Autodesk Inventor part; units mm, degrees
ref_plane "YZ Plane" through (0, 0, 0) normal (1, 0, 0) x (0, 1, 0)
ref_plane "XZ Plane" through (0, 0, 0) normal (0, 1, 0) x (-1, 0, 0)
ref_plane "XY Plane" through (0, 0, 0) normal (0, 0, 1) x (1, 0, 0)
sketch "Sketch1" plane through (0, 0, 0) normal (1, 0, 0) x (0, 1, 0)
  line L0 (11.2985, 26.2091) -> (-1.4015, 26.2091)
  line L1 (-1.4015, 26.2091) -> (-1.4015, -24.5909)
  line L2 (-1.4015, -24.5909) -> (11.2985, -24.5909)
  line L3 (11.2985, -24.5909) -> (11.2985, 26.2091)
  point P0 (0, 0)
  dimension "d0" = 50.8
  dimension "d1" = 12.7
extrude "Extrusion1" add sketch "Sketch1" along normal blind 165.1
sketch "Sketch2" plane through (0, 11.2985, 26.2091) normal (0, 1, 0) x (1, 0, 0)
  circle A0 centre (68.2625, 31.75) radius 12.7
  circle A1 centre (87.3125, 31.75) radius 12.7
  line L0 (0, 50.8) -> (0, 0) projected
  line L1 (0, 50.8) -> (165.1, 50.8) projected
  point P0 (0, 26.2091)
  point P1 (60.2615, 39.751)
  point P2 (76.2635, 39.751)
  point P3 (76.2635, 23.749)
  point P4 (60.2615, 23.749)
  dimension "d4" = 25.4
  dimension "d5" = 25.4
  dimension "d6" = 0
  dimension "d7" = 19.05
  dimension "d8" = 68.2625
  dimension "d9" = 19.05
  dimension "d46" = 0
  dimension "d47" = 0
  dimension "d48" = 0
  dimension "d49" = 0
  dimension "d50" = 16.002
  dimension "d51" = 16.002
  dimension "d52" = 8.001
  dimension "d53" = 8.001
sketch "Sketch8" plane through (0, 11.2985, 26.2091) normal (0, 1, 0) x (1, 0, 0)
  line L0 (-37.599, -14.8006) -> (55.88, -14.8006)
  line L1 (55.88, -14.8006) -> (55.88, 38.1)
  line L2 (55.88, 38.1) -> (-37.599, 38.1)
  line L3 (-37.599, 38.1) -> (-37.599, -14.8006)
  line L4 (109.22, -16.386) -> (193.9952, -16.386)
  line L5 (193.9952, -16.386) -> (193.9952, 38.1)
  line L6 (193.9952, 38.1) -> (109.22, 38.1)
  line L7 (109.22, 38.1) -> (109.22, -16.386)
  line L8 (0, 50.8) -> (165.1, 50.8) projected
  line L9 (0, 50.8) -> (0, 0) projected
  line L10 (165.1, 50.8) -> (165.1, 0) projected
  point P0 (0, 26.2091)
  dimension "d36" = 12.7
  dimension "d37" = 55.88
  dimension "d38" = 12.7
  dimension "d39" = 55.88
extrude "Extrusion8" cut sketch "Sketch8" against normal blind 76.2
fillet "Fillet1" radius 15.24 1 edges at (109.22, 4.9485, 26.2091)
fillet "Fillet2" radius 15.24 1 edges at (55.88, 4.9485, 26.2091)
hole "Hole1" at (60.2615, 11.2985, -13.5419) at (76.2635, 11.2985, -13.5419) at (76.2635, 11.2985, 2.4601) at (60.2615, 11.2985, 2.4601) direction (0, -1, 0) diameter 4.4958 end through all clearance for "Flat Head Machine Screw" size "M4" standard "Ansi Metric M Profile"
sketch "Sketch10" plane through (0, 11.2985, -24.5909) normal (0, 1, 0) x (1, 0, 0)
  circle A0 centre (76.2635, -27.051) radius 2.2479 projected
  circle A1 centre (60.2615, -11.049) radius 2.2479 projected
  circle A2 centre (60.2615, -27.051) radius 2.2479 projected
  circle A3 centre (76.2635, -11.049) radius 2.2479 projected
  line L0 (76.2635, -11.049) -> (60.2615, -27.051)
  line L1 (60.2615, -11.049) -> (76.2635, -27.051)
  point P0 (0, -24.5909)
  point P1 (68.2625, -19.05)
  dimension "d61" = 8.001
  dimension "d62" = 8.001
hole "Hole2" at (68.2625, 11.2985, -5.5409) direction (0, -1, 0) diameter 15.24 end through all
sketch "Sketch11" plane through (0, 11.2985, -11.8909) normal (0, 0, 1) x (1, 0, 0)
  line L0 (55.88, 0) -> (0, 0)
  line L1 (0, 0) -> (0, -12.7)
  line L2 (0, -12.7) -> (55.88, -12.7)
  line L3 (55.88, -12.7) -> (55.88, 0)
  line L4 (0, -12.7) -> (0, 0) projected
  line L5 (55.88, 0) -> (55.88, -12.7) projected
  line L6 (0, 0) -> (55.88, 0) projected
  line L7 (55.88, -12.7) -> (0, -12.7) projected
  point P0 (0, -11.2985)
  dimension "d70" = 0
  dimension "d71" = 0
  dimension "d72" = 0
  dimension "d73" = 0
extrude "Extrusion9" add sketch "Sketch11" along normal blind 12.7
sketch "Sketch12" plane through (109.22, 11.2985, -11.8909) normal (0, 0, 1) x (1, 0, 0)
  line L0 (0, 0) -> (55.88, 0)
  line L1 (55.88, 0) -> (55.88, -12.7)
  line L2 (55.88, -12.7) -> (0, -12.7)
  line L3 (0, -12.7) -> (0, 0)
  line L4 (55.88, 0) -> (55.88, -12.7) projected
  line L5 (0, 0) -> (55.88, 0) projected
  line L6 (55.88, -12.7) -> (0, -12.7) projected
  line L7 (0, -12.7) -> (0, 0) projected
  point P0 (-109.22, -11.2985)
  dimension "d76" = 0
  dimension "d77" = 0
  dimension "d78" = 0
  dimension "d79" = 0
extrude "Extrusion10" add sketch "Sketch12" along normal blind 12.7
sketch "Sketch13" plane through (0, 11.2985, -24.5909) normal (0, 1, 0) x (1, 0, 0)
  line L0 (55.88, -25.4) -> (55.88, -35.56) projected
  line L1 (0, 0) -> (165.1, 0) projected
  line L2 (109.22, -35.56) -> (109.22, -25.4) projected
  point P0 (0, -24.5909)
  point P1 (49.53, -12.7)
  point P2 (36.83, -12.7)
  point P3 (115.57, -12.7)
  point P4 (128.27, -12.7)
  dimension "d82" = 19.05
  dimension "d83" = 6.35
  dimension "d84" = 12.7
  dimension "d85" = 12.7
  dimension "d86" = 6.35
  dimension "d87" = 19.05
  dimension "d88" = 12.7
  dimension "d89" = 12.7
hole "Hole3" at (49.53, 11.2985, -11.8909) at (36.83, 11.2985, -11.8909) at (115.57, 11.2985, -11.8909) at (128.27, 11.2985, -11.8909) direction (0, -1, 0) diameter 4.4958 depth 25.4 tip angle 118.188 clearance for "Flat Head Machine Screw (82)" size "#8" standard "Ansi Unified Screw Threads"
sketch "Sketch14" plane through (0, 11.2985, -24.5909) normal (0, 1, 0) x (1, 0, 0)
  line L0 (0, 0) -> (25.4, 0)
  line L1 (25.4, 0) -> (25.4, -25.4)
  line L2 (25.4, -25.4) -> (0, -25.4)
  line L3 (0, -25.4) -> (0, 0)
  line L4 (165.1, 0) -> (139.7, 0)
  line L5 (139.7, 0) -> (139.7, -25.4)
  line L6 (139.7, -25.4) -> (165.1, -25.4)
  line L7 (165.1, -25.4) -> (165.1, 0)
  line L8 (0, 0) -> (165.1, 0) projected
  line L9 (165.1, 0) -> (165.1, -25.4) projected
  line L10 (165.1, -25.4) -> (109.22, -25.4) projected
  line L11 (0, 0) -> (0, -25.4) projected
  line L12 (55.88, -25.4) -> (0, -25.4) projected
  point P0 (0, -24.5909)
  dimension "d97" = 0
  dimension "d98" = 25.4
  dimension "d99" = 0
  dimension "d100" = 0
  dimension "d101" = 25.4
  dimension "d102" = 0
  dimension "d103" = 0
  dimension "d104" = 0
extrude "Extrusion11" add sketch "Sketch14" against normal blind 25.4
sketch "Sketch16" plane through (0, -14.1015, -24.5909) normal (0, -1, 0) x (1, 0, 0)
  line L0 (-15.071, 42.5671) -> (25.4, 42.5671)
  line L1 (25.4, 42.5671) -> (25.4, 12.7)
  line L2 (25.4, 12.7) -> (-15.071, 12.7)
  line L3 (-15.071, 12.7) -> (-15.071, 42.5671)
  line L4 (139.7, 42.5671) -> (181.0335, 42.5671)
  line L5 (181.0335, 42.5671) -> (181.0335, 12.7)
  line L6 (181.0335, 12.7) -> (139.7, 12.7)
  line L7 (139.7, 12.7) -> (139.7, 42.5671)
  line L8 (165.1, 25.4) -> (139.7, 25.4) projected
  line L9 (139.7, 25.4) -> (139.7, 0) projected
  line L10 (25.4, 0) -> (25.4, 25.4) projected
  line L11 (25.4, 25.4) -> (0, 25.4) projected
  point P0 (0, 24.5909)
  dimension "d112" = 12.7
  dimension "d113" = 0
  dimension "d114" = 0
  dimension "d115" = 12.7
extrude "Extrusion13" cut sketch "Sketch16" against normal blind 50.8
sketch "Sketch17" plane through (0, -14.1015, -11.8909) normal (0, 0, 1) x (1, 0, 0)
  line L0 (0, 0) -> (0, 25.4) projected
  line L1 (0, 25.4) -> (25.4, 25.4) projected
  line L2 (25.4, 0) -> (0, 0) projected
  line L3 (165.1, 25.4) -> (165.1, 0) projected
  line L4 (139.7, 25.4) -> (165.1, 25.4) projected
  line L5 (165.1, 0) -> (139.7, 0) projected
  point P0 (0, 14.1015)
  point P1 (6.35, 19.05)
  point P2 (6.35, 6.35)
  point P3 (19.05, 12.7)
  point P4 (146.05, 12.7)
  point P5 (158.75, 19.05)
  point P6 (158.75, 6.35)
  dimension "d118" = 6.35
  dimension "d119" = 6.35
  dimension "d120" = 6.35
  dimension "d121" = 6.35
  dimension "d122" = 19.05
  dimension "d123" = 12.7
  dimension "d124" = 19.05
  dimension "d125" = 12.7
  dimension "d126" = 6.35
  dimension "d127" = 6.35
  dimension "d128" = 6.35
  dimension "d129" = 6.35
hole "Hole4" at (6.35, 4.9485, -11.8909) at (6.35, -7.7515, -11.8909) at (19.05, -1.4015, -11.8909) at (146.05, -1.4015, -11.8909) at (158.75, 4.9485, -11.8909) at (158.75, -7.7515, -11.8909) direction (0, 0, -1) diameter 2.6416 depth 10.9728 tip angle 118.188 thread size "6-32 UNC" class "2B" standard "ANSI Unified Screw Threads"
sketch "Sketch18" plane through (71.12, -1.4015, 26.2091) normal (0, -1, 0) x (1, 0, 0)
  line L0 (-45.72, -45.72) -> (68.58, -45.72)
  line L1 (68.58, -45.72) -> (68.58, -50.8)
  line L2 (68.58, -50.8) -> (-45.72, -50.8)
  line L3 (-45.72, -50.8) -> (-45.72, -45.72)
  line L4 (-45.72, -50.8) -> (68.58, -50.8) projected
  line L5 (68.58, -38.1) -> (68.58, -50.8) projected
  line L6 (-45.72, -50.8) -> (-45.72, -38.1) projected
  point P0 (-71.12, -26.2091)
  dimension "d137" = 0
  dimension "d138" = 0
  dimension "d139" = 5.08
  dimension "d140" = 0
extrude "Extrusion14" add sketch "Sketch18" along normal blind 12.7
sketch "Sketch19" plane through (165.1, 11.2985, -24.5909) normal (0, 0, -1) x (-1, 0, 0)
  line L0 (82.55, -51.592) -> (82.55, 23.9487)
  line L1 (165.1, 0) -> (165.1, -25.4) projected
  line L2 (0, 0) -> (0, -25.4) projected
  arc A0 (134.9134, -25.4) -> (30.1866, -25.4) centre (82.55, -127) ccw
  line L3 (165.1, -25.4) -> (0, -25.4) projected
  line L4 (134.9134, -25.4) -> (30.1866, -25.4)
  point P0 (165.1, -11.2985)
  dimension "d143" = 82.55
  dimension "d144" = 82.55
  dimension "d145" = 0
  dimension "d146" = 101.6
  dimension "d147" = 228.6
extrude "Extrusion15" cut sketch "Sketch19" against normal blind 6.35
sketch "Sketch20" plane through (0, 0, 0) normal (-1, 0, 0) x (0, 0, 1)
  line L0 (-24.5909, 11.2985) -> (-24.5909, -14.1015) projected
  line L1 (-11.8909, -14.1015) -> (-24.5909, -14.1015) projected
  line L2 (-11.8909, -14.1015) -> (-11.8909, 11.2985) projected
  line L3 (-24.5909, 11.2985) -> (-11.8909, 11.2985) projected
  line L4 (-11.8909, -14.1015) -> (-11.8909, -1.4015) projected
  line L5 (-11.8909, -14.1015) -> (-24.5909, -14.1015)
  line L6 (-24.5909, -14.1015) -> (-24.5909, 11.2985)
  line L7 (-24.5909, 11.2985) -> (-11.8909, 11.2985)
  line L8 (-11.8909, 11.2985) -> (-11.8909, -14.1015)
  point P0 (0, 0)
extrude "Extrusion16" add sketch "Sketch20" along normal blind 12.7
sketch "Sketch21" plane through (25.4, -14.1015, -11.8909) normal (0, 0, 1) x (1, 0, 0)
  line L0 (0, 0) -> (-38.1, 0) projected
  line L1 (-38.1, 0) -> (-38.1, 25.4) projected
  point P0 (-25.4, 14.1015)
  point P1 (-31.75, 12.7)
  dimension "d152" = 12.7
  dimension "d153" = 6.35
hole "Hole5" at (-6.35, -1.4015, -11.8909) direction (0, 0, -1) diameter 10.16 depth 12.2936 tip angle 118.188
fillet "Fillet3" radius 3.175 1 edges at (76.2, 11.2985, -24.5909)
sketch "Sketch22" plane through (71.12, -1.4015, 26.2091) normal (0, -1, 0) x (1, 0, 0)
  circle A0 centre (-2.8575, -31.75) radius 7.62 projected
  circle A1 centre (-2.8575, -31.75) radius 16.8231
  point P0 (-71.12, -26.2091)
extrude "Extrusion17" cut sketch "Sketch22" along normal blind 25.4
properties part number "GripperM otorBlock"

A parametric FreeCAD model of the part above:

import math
import FreeCAD as App
import Part
import Sketcher

V = App.Vector
Q = App.Units.Quantity


def edges_at(feature, points):
    """Names of the edges that pass closest to the given points."""
    edges = feature.Shape.Edges
    near = lambda p: min(range(len(edges)), key=lambda i: edges[i].distToShape(Part.Vertex(*p))[0])
    return sorted({f"Edge{near(p) + 1}" for p in points})


def add_polygon(sketch, points):
    """Adds a closed chain of lines whose ends are joined by coincident constraints."""
    first, n = sketch.GeometryCount, len(points)
    for a, b in zip(points, points[1:] + points[:1]):
        sketch.addGeometry(Part.LineSegment(App.Vector(*a, 0), App.Vector(*b, 0)), False)
    for i in range(n):
        sketch.addConstraint(Sketcher.Constraint("Coincident", first + i, 2, first + (i + 1) % n, 1))

doc = App.newDocument("Part")
body = doc.addObject("PartDesign::Body", "Body")

sketch1 = doc.addObject("Sketcher::SketchObject", "Sketch")
body.addObject(sketch1)
sketch1.AttachmentSupport = (doc.YZ_Plane, [""])
sketch1.MapMode = "FlatFace"
add_polygon(sketch1, [(11, -25), (11, 26), (-1, 26), (-1, -25)])
sketch1.addConstraint(Sketcher.Constraint("Vertical", 0))
sketch1.addConstraint(Sketcher.Constraint("Horizontal", 1))
sketch1.addConstraint(Sketcher.Constraint("Vertical", 2))
sketch1.addConstraint(Sketcher.Constraint("Horizontal", 3))
sketch1.addConstraint(Sketcher.Constraint("DistanceY", 0, 1, 0, 2, Q("2 in")))
sketch1.addConstraint(Sketcher.Constraint("DistanceX", 1, 2, 1, 1, Q("0.5 in")))
sketch1.addConstraint(Sketcher.Constraint("DistanceX", -1, 1, 0, 2, Q("11.2985 mm")))
sketch1.addConstraint(Sketcher.Constraint("DistanceY", -1, 1, 0, 2, Q("26.209 mm")))
pad1 = doc.addObject("PartDesign::Pad", "Pad")
body.addObject(pad1)
pad1.Profile = sketch1
pad1.Length = Q("6.5 in")

sketch2 = doc.addObject("Sketcher::SketchObject", "Sketch001")
body.addObject(sketch2)
sketch2.AttachmentSupport = (doc.XZ_Plane, [""])
sketch2.MapMode = "FlatFace"
sketch2.AttachmentOffset = App.Placement(V(0, 0, -11.2985), App.Rotation())
add_polygon(sketch2, [(-38, -12), (-38, 41), (56, 41), (56, -12)])
add_polygon(sketch2, [(194, -12), (109, -12), (109, 43), (194, 43)])
sketch2.addConstraint(Sketcher.Constraint("Vertical", 0))
sketch2.addConstraint(Sketcher.Constraint("Horizontal", 1))
sketch2.addConstraint(Sketcher.Constraint("Vertical", 2))
sketch2.addConstraint(Sketcher.Constraint("Horizontal", 3))
sketch2.addConstraint(Sketcher.Constraint("Horizontal", 4))
sketch2.addConstraint(Sketcher.Constraint("Vertical", 5))
sketch2.addConstraint(Sketcher.Constraint("Horizontal", 6))
sketch2.addConstraint(Sketcher.Constraint("Vertical", 7))
sketch2.addConstraint(Sketcher.Constraint("Horizontal", 3, 2, 4, 2))
sketch2.addConstraint(Sketcher.Constraint("DistanceX", -1, 1, 1, 2, Q("2.2 in")))
sketch2.addConstraint(Sketcher.Constraint("DistanceX", -1, 1, 4, 2, Q("4.3 in")))
sketch2.addConstraint(Sketcher.Constraint("DistanceX", 4, 2, 4, 1, Q("3.3376 in")))
sketch2.addConstraint(Sketcher.Constraint("DistanceY", 0, 1, 0, 2, Q("2.0827 in")))
sketch2.addConstraint(Sketcher.Constraint("DistanceX", 1, 1, 1, 2, Q("93.479 mm")))
sketch2.addConstraint(Sketcher.Constraint("DistanceY", 5, 1, 5, 2, Q("54.486 mm")))
sketch2.addConstraint(Sketcher.Constraint("DistanceY", -1, 1, 0, 2, Q("41.0097 mm")))
pocket1 = doc.addObject("PartDesign::Pocket", "Pocket")
body.addObject(pocket1)
pocket1.Profile = sketch2
pocket1.Length = Q("3 in")
pocket1.Reversed = True
doc.recompute()

fillet = doc.addObject("PartDesign::Fillet", "Fillet")
body.addObject(fillet)
fillet.Base = (pocket1, edges_at(pocket1, [(109.22, 4.949, 26.209)]))
fillet.Radius = Q("0.6 in")
doc.recompute()

fillet2 = doc.addObject("PartDesign::Fillet", "Fillet001")
body.addObject(fillet2)
fillet2.Base = (fillet, edges_at(fillet, [(55.88, 4.949, 26.209)]))
fillet2.Radius = Q("0.6 in")

sketch3 = doc.addObject("Sketcher::SketchObject", "Sketch002")
body.addObject(sketch3)
sketch3.AttachmentSupport = (doc.XZ_Plane, [""])
sketch3.MapMode = "FlatFace"
sketch3.AttachmentOffset = App.Placement(V(0, 0, -11.2985), App.Rotation())
sketch3.addGeometry(Part.Circle(V(60.3, -13.5, 0), V(0, 0, 1), 2.2), False)
sketch3.addGeometry(Part.Circle(V(76.3, -13.5, 0), V(0, 0, 1), 2.2), False)
sketch3.addGeometry(Part.Circle(V(76.3, 2.5, 0), V(0, 0, 1), 2.2), False)
sketch3.addGeometry(Part.Circle(V(60.3, 2.5, 0), V(0, 0, 1), 2.2), False)
sketch3.addConstraint(Sketcher.Constraint("Equal", 0, 1))
sketch3.addConstraint(Sketcher.Constraint("Equal", 1, 2))
sketch3.addConstraint(Sketcher.Constraint("Equal", 2, 3))
sketch3.addConstraint(Sketcher.Constraint("Horizontal", 0, 3, 1, 3))
sketch3.addConstraint(Sketcher.Constraint("Horizontal", 2, 3, 3, 3))
sketch3.addConstraint(Sketcher.Constraint("Vertical", 1, 3, 2, 3))
sketch3.addConstraint(Sketcher.Constraint("Vertical", 0, 3, 3, 3))
sketch3.addConstraint(Sketcher.Constraint("Diameter", 0, Q("0.177 in")))
sketch3.addConstraint(Sketcher.Constraint("DistanceX", 0, 3, 1, 3, Q("0.63 in")))
sketch3.addConstraint(Sketcher.Constraint("DistanceY", 1, 3, 2, 3, Q("0.63 in")))
sketch3.addConstraint(Sketcher.Constraint("DistanceX", -1, 1, 0, 3, Q("2.3725 in")))
sketch3.addConstraint(Sketcher.Constraint("DistanceY", 0, 3, -1, 1, Q("13.542 mm")))
doc.recompute()
hole = doc.addObject("PartDesign::Hole", "Hole")
body.addObject(hole)
hole.Profile = sketch3
hole.ThreadType = "None"
hole.Diameter = Q("0.177 in")
hole.DepthType = "ThroughAll"
hole.Reversed = True

sketch4 = doc.addObject("Sketcher::SketchObject", "Sketch003")
body.addObject(sketch4)
sketch4.AttachmentSupport = (doc.XZ_Plane, [""])
sketch4.MapMode = "FlatFace"
sketch4.AttachmentOffset = App.Placement(V(0, 0, -11.2985), App.Rotation())
sketch4.addGeometry(Part.Circle(V(68, -6, 0), V(0, 0, 1), 8), False)
sketch4.addConstraint(Sketcher.Constraint("Diameter", 0, Q("0.6 in")))
sketch4.addConstraint(Sketcher.Constraint("DistanceX", -1, 1, 0, 3, Q("2.6875 in")))
sketch4.addConstraint(Sketcher.Constraint("DistanceY", 0, 3, -1, 1, Q("5.541 mm")))
doc.recompute()
hole2 = doc.addObject("PartDesign::Hole", "Hole001")
body.addObject(hole2)
hole2.Profile = sketch4
hole2.ThreadType = "None"
hole2.Diameter = Q("0.6 in")
hole2.DepthType = "ThroughAll"
hole2.Reversed = True

sketch5 = doc.addObject("Sketcher::SketchObject", "Sketch004")
body.addObject(sketch5)
sketch5.AttachmentSupport = (doc.XY_Plane, [""])
sketch5.MapMode = "FlatFace"
sketch5.AttachmentOffset = App.Placement(V(0, 0, -11.8909), App.Rotation())
add_polygon(sketch5, [(56, -1), (56, 11), (0, 11), (0, -1)])
sketch5.addConstraint(Sketcher.Constraint("Vertical", 0))
sketch5.addConstraint(Sketcher.Constraint("Horizontal", 1))
sketch5.addConstraint(Sketcher.Constraint("Vertical", 2))
sketch5.addConstraint(Sketcher.Constraint("Horizontal", 3))
sketch5.addConstraint(Sketcher.Constraint("PointOnObject", 1, 2, -2))
sketch5.addConstraint(Sketcher.Constraint("DistanceX", 1, 2, 1, 1, Q("2.2 in")))
sketch5.addConstraint(Sketcher.Constraint("DistanceY", 0, 1, 0, 2, Q("0.5 in")))
sketch5.addConstraint(Sketcher.Constraint("DistanceY", -1, 1, 0, 2, Q("11.2985 mm")))
pad2 = doc.addObject("PartDesign::Pad", "Pad001")
body.addObject(pad2)
pad2.Profile = sketch5
pad2.Length = Q("0.5 in")

sketch6 = doc.addObject("Sketcher::SketchObject", "Sketch005")
body.addObject(sketch6)
sketch6.AttachmentSupport = (doc.XY_Plane, [""])
sketch6.MapMode = "FlatFace"
sketch6.AttachmentOffset = App.Placement(V(0, 0, -11.8909), App.Rotation())
add_polygon(sketch6, [(165, 11), (109, 11), (109, -1), (165, -1)])
sketch6.addConstraint(Sketcher.Constraint("Horizontal", 0))
sketch6.addConstraint(Sketcher.Constraint("Vertical", 1))
sketch6.addConstraint(Sketcher.Constraint("Horizontal", 2))
sketch6.addConstraint(Sketcher.Constraint("Vertical", 3))
sketch6.addConstraint(Sketcher.Constraint("DistanceX", 0, 2, 0, 1, Q("2.2 in")))
sketch6.addConstraint(Sketcher.Constraint("DistanceY", 1, 2, 1, 1, Q("0.5 in")))
sketch6.addConstraint(Sketcher.Constraint("DistanceX", -1, 1, 0, 2, Q("4.3 in")))
sketch6.addConstraint(Sketcher.Constraint("DistanceY", -1, 1, 0, 2, Q("11.2985 mm")))
pad3 = doc.addObject("PartDesign::Pad", "Pad002")
body.addObject(pad3)
pad3.Profile = sketch6
pad3.Length = Q("0.5 in")

sketch7 = doc.addObject("Sketcher::SketchObject", "Sketch006")
body.addObject(sketch7)
sketch7.AttachmentSupport = (doc.XZ_Plane, [""])
sketch7.MapMode = "FlatFace"
sketch7.AttachmentOffset = App.Placement(V(0, 0, -11.2985), App.Rotation())
sketch7.addGeometry(Part.Circle(V(49.5, -11.9, 0), V(0, 0, 1), 2.2), False)
sketch7.addGeometry(Part.Circle(V(36.8, -11.9, 0), V(0, 0, 1), 2.2), False)
sketch7.addGeometry(Part.Circle(V(115.6, -11.9, 0), V(0, 0, 1), 2.2), False)
sketch7.addGeometry(Part.Circle(V(128.3, -11.9, 0), V(0, 0, 1), 2.2), False)
sketch7.addConstraint(Sketcher.Constraint("Equal", 0, 1))
sketch7.addConstraint(Sketcher.Constraint("Equal", 1, 2))
sketch7.addConstraint(Sketcher.Constraint("Equal", 2, 3))
sketch7.addConstraint(Sketcher.Constraint("Horizontal", 0, 3, 1, 3))
sketch7.addConstraint(Sketcher.Constraint("Horizontal", 1, 3, 2, 3))
sketch7.addConstraint(Sketcher.Constraint("Horizontal", 2, 3, 3, 3))
sketch7.addConstraint(Sketcher.Constraint("Diameter", 0, Q("0.177 in")))
sketch7.addConstraint(Sketcher.Constraint("DistanceX", 1, 3, 0, 3, Q("0.5 in")))
sketch7.addConstraint(Sketcher.Constraint("DistanceX", 0, 3, 2, 3, Q("2.6 in")))
sketch7.addConstraint(Sketcher.Constraint("DistanceX", 2, 3, 3, 3, Q("0.5 in")))
sketch7.addConstraint(Sketcher.Constraint("DistanceX", -1, 1, 0, 3, Q("1.95 in")))
sketch7.addConstraint(Sketcher.Constraint("DistanceY", 0, 3, -1, 1, Q("11.891 mm")))
doc.recompute()
hole3 = doc.addObject("PartDesign::Hole", "Hole002")
body.addObject(hole3)
hole3.Profile = sketch7
hole3.ThreadType = "None"
hole3.Diameter = Q("0.177 in")
hole3.DepthType = "Dimension"
hole3.Depth = Q("1 in")
hole3.DrillPoint = "Angled"
hole3.DrillPointAngle = 118.188
hole3.Reversed = True

sketch8 = doc.addObject("Sketcher::SketchObject", "Sketch007")
body.addObject(sketch8)
sketch8.AttachmentSupport = (doc.XZ_Plane, [""])
sketch8.MapMode = "FlatFace"
sketch8.AttachmentOffset = App.Placement(V(0, 0, -11.2985), App.Rotation())
add_polygon(sketch8, [(165, -25), (140, -25), (140, 1), (165, 1)])
add_polygon(sketch8, [(25, -25), (0, -25), (0, 1), (25, 1)])
sketch8.addConstraint(Sketcher.Constraint("Horizontal", 0))
sketch8.addConstraint(Sketcher.Constraint("Vertical", 1))
sketch8.addConstraint(Sketcher.Constraint("Horizontal", 2))
sketch8.addConstraint(Sketcher.Constraint("Vertical", 3))
sketch8.addConstraint(Sketcher.Constraint("Horizontal", 4))
sketch8.addConstraint(Sketcher.Constraint("Vertical", 5))
sketch8.addConstraint(Sketcher.Constraint("Horizontal", 6))
sketch8.addConstraint(Sketcher.Constraint("Vertical", 7))
sketch8.addConstraint(Sketcher.Constraint("PointOnObject", 4, 2, -2))
sketch8.addConstraint(Sketcher.Constraint("Horizontal", 3, 2, 4, 2))
sketch8.addConstraint(Sketcher.Constraint("Horizontal", 2, 2, 5, 2))
sketch8.addConstraint(Sketcher.Constraint("Equal", 2, 4))
sketch8.addConstraint(Sketcher.Constraint("Equal", 6, 1))
sketch8.addConstraint(Sketcher.Constraint("DistanceX", 0, 2, 0, 1, Q("1 in")))
sketch8.addConstraint(Sketcher.Constraint("DistanceX", -1, 1, 0, 2, Q("5.5 in")))
sketch8.addConstraint(Sketcher.Constraint("DistanceY", 0, 2, -1, 1, Q("24.591 mm")))
pad4 = doc.addObject("PartDesign::Pad", "Pad003")
body.addObject(pad4)
pad4.Profile = sketch8
pad4.Length = Q("1 in")

sketch9 = doc.addObject("Sketcher::SketchObject", "Sketch008")
body.addObject(sketch9)
sketch9.AttachmentSupport = (doc.XZ_Plane, [""])
sketch9.MapMode = "FlatFace"
sketch9.AttachmentOffset = App.Placement(V(0, 0, 14.1015), App.Rotation())
add_polygon(sketch9, [(25, 18), (-15, 18), (-15, -12), (25, -12)])
add_polygon(sketch9, [(181, 18), (140, 18), (140, -12), (181, -12)])
sketch9.addConstraint(Sketcher.Constraint("Horizontal", 0))
sketch9.addConstraint(Sketcher.Constraint("Vertical", 1))
sketch9.addConstraint(Sketcher.Constraint("Horizontal", 2))
sketch9.addConstraint(Sketcher.Constraint("Vertical", 3))
sketch9.addConstraint(Sketcher.Constraint("Horizontal", 4))
sketch9.addConstraint(Sketcher.Constraint("Vertical", 5))
sketch9.addConstraint(Sketcher.Constraint("Horizontal", 6))
sketch9.addConstraint(Sketcher.Constraint("Vertical", 7))
sketch9.addConstraint(Sketcher.Constraint("Horizontal", 3, 2, 4, 2))
sketch9.addConstraint(Sketcher.Constraint("Horizontal", 2, 2, 5, 2))
sketch9.addConstraint(Sketcher.Constraint("DistanceX", -1, 1, 2, 2, Q("1 in")))
sketch9.addConstraint(Sketcher.Constraint("DistanceX", -1, 1, 4, 2, Q("5.5 in")))
sketch9.addConstraint(Sketcher.Constraint("DistanceX", 4, 2, 4, 1, Q("1.6273 in")))
sketch9.addConstraint(Sketcher.Constraint("DistanceX", 0, 2, 0, 1, Q("40.471 mm")))
sketch9.addConstraint(Sketcher.Constraint("DistanceY", 1, 2, 1, 1, Q("29.867 mm")))
sketch9.addConstraint(Sketcher.Constraint("DistanceY", -1, 1, 0, 2, Q("17.9762 mm")))
pocket2 = doc.addObject("PartDesign::Pocket", "Pocket001")
body.addObject(pocket2)
pocket2.Profile = sketch9
pocket2.Length = Q("2 in")

sketch10 = doc.addObject("Sketcher::SketchObject", "Sketch009")
body.addObject(sketch10)
sketch10.AttachmentSupport = (doc.XY_Plane, [""])
sketch10.MapMode = "FlatFace"
sketch10.AttachmentOffset = App.Placement(V(0, 0, -11.8909), App.Rotation())
sketch10.addGeometry(Part.Circle(V(6.3, 4.9, 0), V(0, 0, 1), 1.3), False)
sketch10.addGeometry(Part.Circle(V(6.3, -7.8, 0), V(0, 0, 1), 1.3), False)
sketch10.addGeometry(Part.Circle(V(19.1, -1.4, 0), V(0, 0, 1), 1.3), False)
sketch10.addGeometry(Part.Circle(V(146.1, -1.4, 0), V(0, 0, 1), 1.3), False)
sketch10.addGeometry(Part.Circle(V(158.8, 4.9, 0), V(0, 0, 1), 1.3), False)
sketch10.addGeometry(Part.Circle(V(158.8, -7.8, 0), V(0, 0, 1), 1.3), False)
sketch10.addConstraint(Sketcher.Constraint("Equal", 0, 1))
sketch10.addConstraint(Sketcher.Constraint("Equal", 1, 2))
sketch10.addConstraint(Sketcher.Constraint("Equal", 2, 3))
sketch10.addConstraint(Sketcher.Constraint("Equal", 3, 4))
sketch10.addConstraint(Sketcher.Constraint("Equal", 4, 5))
sketch10.addConstraint(Sketcher.Constraint("Horizontal", 2, 3, 3, 3))
sketch10.addConstraint(Sketcher.Constraint("Horizontal", 0, 3, 4, 3))
sketch10.addConstraint(Sketcher.Constraint("Horizontal", 1, 3, 5, 3))
sketch10.addConstraint(Sketcher.Constraint("Vertical", 0, 3, 1, 3))
sketch10.addConstraint(Sketcher.Constraint("Vertical", 4, 3, 5, 3))
sketch10.addConstraint(Sketcher.Constraint("Diameter", 0, Q("0.104 in")))
sketch10.addConstraint(Sketcher.Constraint("DistanceX", 2, 3, 3, 3, Q("5 in")))
sketch10.addConstraint(Sketcher.Constraint("DistanceX", 0, 3, 4, 3, Q("6 in")))
sketch10.addConstraint(Sketcher.Constraint("DistanceY", 1, 3, 0, 3, Q("0.5 in")))
sketch10.addConstraint(Sketcher.Constraint("DistanceX", 0, 3, 2, 3, Q("0.5 in")))
sketch10.addConstraint(Sketcher.Constraint("DistanceX", -1, 1, 0, 3, Q("0.25 in")))
sketch10.addConstraint(Sketcher.Constraint("DistanceY", 2, 3, 0, 3, Q("0.25 in")))
sketch10.addConstraint(Sketcher.Constraint("DistanceY", -1, 1, 0, 3, Q("4.9485 mm")))
doc.recompute()
hole4 = doc.addObject("PartDesign::Hole", "Hole003")
body.addObject(hole4)
hole4.Profile = sketch10
hole4.ThreadType = "None"
hole4.Diameter = Q("0.104 in")
hole4.DepthType = "Dimension"
hole4.Depth = Q("0.432 in")
hole4.DrillPoint = "Angled"
hole4.DrillPointAngle = 118.188

sketch11 = doc.addObject("Sketcher::SketchObject", "Sketch010")
body.addObject(sketch11)
sketch11.AttachmentSupport = (doc.XZ_Plane, [""])
sketch11.MapMode = "FlatFace"
sketch11.AttachmentOffset = App.Placement(V(0, 0, 1.4015), App.Rotation())
add_polygon(sketch11, [(140, -20), (25, -20), (25, -25), (140, -25)])
sketch11.addConstraint(Sketcher.Constraint("Horizontal", 0))
sketch11.addConstraint(Sketcher.Constraint("Vertical", 1))
sketch11.addConstraint(Sketcher.Constraint("Horizontal", 2))
sketch11.addConstraint(Sketcher.Constraint("Vertical", 3))
sketch11.addConstraint(Sketcher.Constraint("DistanceY", 1, 2, 1, 1, Q("0.2 in")))
sketch11.addConstraint(Sketcher.Constraint("DistanceX", 0, 2, 0, 1, Q("4.5 in")))
sketch11.addConstraint(Sketcher.Constraint("DistanceX", -1, 1, 0, 2, Q("1 in")))
sketch11.addConstraint(Sketcher.Constraint("DistanceY", 0, 2, -1, 1, Q("19.511 mm")))
pad5 = doc.addObject("PartDesign::Pad", "Pad004")
body.addObject(pad5)
pad5.Profile = sketch11
pad5.Length = Q("0.5 in")

sketch12 = doc.addObject("Sketcher::SketchObject", "Sketch011")
body.addObject(sketch12)
sketch12.AttachmentSupport = (doc.XY_Plane, [""])
sketch12.MapMode = "FlatFace"
sketch12.AttachmentOffset = App.Placement(V(0, 0, -24.5909), App.Rotation())
sketch12.addGeometry(Part.LineSegment(V(135, -14, 0), V(30, -14, 0)), False)
sketch12.addGeometry(Part.ArcOfCircle(Part.Circle(V(83, -116, 0), V(0, 0, 1), 114), math.radians(63), math.radians(117)), False)
sketch12.addConstraint(Sketcher.Constraint("Coincident", 0, 1, 1, 1))
sketch12.addConstraint(Sketcher.Constraint("Coincident", 1, 2, 0, 2))
sketch12.addConstraint(Sketcher.Constraint("Horizontal", 0))
sketch12.addConstraint(Sketcher.Constraint("Radius", 1, Q("4.5 in")))
sketch12.addConstraint(Sketcher.Constraint("DistanceY", 1, 3, 0, 1, Q("4 in")))
sketch12.addConstraint(Sketcher.Constraint("DistanceX", -1, 1, 1, 3, Q("3.25 in")))
sketch12.addConstraint(Sketcher.Constraint("DistanceY", 1, 3, -1, 1, Q("115.7015 mm")))
pocket3 = doc.addObject("PartDesign::Pocket", "Pocket002")
body.addObject(pocket3)
pocket3.Profile = sketch12
pocket3.Length = Q("0.25 in")
pocket3.Reversed = True

sketch13 = doc.addObject("Sketcher::SketchObject", "Sketch012")
body.addObject(sketch13)
sketch13.AttachmentSupport = (doc.YZ_Plane, [""])
sketch13.MapMode = "FlatFace"
add_polygon(sketch13, [(11, -12), (11, -25), (-14, -25), (-14, -12)])
sketch13.addConstraint(Sketcher.Constraint("Vertical", 0))
sketch13.addConstraint(Sketcher.Constraint("Horizontal", 1))
sketch13.addConstraint(Sketcher.Constraint("Vertical", 2))
sketch13.addConstraint(Sketcher.Constraint("Horizontal", 3))
sketch13.addConstraint(Sketcher.Constraint("DistanceX", 1, 2, 1, 1, Q("1 in")))
sketch13.addConstraint(Sketcher.Constraint("DistanceY", 0, 2, 0, 1, Q("0.5 in")))
sketch13.addConstraint(Sketcher.Constraint("DistanceX", -1, 1, 0, 2, Q("11.2985 mm")))
sketch13.addConstraint(Sketcher.Constraint("DistanceY", 0, 2, -1, 1, Q("24.591 mm")))
pad6 = doc.addObject("PartDesign::Pad", "Pad005")
body.addObject(pad6)
pad6.Profile = sketch13
pad6.Length = Q("0.5 in")
pad6.Reversed = True

sketch14 = doc.addObject("Sketcher::SketchObject", "Sketch013")
body.addObject(sketch14)
sketch14.AttachmentSupport = (doc.XY_Plane, [""])
sketch14.MapMode = "FlatFace"
sketch14.AttachmentOffset = App.Placement(V(0, 0, -11.8909), App.Rotation())
sketch14.addGeometry(Part.Circle(V(-6, -1, 0), V(0, 0, 1), 5), False)
sketch14.addConstraint(Sketcher.Constraint("Diameter", 0, Q("0.4 in")))
sketch14.addConstraint(Sketcher.Constraint("DistanceX", 0, 3, -1, 1, Q("0.25 in")))
sketch14.addConstraint(Sketcher.Constraint("DistanceY", 0, 3, -1, 1, Q("1.4015 mm")))
doc.recompute()
hole5 = doc.addObject("PartDesign::Hole", "Hole004")
body.addObject(hole5)
hole5.Profile = sketch14
hole5.ThreadType = "None"
hole5.Diameter = Q("0.4 in")
hole5.DepthType = "Dimension"
hole5.Depth = Q("0.484 in")
hole5.DrillPoint = "Angled"
hole5.DrillPointAngle = 118.188
doc.recompute()

fillet3 = doc.addObject("PartDesign::Fillet", "Fillet002")
body.addObject(fillet3)
fillet3.Base = (hole5, edges_at(hole5, [(76.2, 11.299, -24.591)]))
fillet3.Radius = Q("0.125 in")

sketch15 = doc.addObject("Sketcher::SketchObject", "Sketch014")
body.addObject(sketch15)
sketch15.AttachmentSupport = (doc.XZ_Plane, [""])
sketch15.MapMode = "FlatFace"
sketch15.AttachmentOffset = App.Placement(V(0, 0, 1.4015), App.Rotation())
sketch15.addGeometry(Part.Circle(V(68, -6, 0), V(0, 0, 1), 17), False)
sketch15.addGeometry(Part.Circle(V(68, -6, 0), V(0, 0, 1), 8), False)
sketch15.addConstraint(Sketcher.Constraint("Coincident", 1, 3, 0, 3))
sketch15.addConstraint(Sketcher.Constraint("Diameter", 1, Q("0.6 in")))
sketch15.addConstraint(Sketcher.Constraint("Diameter", 0, Q("33.6462 mm")))
sketch15.addConstraint(Sketcher.Constraint("DistanceX", -1, 1, 0, 3, Q("2.6875 in")))
sketch15.addConstraint(Sketcher.Constraint("DistanceY", 0, 3, -1, 1, Q("5.541 mm")))
pocket4 = doc.addObject("PartDesign::Pocket", "Pocket003")
body.addObject(pocket4)
pocket4.Profile = sketch15
pocket4.Length = Q("1 in")
pocket4.Reversed = True

doc.recompute()
